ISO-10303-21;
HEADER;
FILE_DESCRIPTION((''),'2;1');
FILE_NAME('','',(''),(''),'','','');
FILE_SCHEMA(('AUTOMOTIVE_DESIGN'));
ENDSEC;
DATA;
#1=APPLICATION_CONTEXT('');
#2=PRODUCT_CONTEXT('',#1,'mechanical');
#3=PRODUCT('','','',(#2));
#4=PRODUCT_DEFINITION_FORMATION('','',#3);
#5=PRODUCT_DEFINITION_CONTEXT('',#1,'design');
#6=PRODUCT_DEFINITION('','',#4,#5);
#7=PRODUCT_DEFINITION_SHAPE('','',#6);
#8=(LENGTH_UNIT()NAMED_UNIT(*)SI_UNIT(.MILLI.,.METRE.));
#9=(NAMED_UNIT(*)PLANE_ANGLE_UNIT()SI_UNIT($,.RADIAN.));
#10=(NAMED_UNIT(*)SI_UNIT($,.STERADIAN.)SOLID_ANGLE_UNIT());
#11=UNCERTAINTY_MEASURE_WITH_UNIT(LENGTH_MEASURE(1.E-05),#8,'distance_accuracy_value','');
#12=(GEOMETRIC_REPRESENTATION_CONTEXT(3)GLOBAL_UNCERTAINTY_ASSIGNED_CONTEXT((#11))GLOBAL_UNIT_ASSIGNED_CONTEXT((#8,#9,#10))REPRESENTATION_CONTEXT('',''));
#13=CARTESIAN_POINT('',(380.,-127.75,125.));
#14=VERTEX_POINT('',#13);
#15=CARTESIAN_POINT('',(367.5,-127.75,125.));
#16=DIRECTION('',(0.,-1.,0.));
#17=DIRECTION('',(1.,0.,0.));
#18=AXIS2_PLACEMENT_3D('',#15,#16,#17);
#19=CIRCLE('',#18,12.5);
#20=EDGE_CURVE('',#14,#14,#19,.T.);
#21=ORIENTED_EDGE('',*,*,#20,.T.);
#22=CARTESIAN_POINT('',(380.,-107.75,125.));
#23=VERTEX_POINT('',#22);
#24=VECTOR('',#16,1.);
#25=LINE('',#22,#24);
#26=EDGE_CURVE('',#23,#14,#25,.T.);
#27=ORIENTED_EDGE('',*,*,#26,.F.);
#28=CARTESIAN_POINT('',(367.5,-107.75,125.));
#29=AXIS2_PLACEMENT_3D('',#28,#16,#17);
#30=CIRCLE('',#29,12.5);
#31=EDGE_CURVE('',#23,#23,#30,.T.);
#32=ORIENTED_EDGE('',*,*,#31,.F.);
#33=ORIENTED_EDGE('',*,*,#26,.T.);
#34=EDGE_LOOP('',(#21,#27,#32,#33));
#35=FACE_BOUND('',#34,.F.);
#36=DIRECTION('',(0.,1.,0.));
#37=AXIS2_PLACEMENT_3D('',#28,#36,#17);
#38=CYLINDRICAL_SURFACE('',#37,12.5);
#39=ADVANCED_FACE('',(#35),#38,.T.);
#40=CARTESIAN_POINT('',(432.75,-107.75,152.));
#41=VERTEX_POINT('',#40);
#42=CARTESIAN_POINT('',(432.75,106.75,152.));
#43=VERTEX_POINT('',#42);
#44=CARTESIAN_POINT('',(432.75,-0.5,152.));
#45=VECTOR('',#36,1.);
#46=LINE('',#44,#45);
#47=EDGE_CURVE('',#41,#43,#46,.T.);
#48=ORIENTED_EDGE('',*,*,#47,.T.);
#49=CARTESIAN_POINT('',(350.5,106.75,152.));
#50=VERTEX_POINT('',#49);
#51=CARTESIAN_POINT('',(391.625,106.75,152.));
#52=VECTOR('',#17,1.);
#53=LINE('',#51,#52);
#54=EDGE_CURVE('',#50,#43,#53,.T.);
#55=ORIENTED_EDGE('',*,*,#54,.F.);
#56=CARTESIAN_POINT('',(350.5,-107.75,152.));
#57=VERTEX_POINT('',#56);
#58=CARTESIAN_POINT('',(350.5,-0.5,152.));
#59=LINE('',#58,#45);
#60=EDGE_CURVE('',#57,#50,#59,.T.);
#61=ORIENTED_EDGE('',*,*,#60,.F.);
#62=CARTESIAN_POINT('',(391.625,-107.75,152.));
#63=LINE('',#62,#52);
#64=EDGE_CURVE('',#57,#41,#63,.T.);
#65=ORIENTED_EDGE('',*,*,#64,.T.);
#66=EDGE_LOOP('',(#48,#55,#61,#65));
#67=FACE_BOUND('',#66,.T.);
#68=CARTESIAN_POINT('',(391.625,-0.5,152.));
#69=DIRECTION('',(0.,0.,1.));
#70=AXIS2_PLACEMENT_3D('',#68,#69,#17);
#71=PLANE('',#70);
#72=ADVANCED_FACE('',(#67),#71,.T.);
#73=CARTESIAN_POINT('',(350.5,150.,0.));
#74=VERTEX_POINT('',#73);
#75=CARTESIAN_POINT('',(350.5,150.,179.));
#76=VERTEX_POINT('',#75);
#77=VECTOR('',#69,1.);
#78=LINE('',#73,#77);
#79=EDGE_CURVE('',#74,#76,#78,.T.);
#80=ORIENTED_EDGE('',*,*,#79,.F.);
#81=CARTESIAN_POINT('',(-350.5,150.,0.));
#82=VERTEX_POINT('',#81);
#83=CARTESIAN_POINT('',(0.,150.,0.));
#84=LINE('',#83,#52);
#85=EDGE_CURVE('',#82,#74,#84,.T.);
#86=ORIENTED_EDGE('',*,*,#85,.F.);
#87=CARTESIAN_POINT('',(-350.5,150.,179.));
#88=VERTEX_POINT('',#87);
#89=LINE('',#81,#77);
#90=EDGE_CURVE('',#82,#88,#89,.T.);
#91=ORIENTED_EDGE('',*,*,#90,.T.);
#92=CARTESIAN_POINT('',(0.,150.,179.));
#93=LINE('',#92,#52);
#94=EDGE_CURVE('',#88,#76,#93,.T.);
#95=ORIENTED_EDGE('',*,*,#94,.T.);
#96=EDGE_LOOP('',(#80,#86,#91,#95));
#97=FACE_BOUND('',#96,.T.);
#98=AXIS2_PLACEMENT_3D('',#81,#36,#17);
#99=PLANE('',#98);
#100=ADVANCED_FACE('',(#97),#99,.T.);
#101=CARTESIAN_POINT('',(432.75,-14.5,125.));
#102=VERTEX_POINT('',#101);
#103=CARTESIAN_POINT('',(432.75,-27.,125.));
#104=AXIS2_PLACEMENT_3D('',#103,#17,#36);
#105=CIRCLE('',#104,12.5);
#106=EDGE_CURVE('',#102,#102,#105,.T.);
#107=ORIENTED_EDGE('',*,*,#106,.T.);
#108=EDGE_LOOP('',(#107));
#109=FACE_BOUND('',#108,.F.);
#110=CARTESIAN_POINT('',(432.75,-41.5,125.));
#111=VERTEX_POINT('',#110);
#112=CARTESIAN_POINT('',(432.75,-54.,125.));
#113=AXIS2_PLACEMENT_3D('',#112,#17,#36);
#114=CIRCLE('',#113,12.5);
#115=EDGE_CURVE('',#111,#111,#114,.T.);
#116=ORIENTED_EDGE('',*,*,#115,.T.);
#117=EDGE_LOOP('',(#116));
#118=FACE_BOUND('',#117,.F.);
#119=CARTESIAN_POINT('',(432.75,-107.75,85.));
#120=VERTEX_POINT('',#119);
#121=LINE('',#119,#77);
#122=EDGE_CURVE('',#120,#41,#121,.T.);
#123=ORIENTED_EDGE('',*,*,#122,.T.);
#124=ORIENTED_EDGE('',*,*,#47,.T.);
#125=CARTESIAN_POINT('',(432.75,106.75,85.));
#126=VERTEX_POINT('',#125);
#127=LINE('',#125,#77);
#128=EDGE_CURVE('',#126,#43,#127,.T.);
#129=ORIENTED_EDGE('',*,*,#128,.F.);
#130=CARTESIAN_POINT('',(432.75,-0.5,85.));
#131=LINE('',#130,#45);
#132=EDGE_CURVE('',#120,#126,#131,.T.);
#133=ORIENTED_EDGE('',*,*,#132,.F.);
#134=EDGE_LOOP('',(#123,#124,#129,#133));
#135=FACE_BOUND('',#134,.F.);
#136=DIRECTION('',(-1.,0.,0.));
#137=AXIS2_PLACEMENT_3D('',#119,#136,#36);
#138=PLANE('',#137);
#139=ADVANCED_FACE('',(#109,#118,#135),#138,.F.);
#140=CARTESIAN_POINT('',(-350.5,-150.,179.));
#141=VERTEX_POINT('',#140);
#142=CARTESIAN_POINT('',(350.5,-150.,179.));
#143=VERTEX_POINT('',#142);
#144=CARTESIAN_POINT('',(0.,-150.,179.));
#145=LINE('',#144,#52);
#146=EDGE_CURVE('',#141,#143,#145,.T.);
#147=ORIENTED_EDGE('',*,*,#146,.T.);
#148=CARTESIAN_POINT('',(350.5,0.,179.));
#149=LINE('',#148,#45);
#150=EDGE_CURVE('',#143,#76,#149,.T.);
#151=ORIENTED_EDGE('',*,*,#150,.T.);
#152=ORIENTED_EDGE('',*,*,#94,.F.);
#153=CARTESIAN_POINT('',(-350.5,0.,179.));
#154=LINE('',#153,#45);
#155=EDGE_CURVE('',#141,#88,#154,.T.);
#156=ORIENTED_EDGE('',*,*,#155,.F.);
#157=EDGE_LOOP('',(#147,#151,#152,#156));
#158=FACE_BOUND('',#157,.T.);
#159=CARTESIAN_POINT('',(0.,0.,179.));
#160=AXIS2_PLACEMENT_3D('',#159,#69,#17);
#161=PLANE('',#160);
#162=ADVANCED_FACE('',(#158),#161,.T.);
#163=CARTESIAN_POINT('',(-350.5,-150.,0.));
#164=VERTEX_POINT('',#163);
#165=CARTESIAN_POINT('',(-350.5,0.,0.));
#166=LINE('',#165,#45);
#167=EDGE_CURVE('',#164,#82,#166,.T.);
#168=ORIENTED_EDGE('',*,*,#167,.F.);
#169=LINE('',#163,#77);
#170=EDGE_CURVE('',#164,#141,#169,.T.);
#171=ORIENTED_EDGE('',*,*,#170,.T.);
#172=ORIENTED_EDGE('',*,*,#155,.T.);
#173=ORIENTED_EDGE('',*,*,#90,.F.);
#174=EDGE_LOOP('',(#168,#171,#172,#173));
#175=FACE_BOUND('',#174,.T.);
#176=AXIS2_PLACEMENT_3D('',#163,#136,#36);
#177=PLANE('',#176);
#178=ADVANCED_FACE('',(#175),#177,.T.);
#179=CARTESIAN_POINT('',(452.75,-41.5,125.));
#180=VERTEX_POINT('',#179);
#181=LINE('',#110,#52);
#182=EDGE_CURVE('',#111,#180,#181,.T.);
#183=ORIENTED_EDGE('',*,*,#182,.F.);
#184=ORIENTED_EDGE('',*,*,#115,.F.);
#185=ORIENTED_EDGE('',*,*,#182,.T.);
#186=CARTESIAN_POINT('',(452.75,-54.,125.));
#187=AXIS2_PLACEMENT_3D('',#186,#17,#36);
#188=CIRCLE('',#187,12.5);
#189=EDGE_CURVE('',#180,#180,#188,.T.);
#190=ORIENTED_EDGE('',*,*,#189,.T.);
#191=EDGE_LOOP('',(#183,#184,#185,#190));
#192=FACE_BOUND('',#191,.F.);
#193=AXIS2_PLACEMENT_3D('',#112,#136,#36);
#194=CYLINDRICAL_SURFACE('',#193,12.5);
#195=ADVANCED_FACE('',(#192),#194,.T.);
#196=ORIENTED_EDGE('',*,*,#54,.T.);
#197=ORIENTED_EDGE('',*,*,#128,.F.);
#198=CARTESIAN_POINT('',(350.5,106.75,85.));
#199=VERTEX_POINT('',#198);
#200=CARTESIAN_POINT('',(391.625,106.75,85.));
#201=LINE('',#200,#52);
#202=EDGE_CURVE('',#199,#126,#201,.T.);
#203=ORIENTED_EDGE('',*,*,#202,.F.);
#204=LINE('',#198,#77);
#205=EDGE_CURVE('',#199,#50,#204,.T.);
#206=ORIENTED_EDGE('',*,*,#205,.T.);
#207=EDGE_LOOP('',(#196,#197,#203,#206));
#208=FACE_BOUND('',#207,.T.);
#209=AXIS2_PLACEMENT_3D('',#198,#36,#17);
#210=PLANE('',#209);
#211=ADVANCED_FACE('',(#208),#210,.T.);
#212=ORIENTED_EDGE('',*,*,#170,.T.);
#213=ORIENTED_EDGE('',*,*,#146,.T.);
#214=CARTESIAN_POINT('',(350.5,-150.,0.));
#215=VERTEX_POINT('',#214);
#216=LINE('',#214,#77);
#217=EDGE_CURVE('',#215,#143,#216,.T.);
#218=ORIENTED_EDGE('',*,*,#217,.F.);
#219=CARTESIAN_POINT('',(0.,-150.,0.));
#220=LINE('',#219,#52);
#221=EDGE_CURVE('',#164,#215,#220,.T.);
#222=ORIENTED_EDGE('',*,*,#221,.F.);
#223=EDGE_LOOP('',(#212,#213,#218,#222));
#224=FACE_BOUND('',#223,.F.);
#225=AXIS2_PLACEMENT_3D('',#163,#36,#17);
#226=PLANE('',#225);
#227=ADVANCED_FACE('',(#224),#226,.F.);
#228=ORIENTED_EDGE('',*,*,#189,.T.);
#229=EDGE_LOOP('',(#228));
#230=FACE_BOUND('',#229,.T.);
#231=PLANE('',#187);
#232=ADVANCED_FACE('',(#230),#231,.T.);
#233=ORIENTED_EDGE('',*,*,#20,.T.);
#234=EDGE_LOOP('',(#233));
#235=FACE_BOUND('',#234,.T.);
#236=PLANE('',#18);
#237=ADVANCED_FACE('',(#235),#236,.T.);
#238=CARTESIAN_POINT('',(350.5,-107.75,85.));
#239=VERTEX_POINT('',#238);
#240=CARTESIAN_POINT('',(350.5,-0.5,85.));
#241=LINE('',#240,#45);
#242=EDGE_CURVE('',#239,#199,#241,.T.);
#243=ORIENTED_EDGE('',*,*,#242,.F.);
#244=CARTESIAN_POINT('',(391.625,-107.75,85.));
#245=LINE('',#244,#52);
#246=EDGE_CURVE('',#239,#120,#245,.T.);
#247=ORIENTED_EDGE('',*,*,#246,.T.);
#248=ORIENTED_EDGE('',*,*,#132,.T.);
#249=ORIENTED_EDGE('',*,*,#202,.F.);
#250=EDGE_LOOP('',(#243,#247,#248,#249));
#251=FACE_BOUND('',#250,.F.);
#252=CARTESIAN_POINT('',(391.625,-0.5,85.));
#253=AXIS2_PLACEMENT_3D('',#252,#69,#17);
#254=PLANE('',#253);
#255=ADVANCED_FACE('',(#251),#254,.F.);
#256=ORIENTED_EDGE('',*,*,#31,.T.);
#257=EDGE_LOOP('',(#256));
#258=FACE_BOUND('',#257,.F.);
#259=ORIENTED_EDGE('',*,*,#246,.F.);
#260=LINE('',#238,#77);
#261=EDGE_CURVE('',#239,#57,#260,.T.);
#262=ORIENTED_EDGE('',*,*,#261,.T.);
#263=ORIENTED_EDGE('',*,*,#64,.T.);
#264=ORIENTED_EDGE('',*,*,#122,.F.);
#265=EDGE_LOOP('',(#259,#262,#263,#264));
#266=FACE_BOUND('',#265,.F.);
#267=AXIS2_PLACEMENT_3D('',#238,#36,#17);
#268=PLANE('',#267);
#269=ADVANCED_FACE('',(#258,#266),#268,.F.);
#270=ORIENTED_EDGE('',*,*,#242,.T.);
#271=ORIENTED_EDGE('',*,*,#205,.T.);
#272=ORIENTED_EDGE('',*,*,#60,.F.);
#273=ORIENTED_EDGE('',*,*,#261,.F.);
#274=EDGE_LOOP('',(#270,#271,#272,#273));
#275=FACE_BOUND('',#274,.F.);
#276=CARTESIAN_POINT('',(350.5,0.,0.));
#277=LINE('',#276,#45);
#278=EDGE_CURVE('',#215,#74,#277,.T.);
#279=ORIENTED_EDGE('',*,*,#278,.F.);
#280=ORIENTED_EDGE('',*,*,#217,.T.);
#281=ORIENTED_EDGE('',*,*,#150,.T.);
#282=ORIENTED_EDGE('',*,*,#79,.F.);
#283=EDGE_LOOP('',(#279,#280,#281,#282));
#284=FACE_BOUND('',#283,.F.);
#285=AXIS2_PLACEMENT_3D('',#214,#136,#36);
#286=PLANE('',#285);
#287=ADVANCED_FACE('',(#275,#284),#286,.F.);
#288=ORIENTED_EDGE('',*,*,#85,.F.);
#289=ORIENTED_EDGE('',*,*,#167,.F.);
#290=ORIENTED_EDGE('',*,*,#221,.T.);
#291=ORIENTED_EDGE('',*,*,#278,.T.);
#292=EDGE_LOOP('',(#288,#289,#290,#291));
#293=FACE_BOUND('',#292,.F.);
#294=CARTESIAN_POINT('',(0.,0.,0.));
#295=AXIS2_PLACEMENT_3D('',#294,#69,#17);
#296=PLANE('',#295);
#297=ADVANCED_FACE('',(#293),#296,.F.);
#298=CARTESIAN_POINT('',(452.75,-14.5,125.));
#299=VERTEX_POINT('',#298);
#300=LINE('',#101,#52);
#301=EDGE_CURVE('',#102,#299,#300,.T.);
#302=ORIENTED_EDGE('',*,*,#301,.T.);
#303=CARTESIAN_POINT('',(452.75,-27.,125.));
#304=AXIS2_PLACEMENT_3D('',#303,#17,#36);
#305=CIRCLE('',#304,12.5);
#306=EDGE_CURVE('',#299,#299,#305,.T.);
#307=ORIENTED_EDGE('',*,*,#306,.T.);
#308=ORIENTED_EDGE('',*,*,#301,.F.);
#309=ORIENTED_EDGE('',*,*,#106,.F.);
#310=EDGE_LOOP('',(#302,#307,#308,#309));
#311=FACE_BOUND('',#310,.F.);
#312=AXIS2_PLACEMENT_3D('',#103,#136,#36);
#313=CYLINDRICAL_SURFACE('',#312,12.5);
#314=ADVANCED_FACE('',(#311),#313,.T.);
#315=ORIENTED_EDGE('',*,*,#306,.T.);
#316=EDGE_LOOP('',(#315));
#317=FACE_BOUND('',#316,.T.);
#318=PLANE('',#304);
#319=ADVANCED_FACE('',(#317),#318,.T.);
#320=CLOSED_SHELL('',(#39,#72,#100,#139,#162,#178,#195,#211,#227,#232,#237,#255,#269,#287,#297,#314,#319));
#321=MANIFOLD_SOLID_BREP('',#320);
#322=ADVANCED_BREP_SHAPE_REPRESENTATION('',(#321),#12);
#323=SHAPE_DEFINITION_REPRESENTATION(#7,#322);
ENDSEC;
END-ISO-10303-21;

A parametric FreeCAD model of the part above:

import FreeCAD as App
import Part
import Sketcher
from FreeCAD import Vector

doc = App.newDocument("Part")
body = doc.addObject("PartDesign::Body", "Body")

# Sketch on XY plane
sketch1 = doc.addObject("Sketcher::SketchObject", "Sketch")
body.addObject(sketch1)
sketch1.AttachmentSupport = (doc.XY_Plane, [""])
sketch1.MapMode = "FlatFace"
sketch1.addGeometry(Part.LineSegment(Vector(-350, 150, 0), Vector(-350, -150, 0)), False)
sketch1.addGeometry(Part.LineSegment(Vector(-350, -150, 0), Vector(350, -150, 0)), False)
sketch1.addGeometry(Part.LineSegment(Vector(350, -150, 0), Vector(350, 150, 0)), False)
sketch1.addGeometry(Part.LineSegment(Vector(350, 150, 0), Vector(-350, 150, 0)), False)
sketch1.addConstraint(Sketcher.Constraint("Coincident", 0, 2, 1, 1))
sketch1.addConstraint(Sketcher.Constraint("Coincident", 1, 2, 2, 1))
sketch1.addConstraint(Sketcher.Constraint("Coincident", 2, 2, 3, 1))
sketch1.addConstraint(Sketcher.Constraint("Coincident", 3, 2, 0, 1))
sketch1.addConstraint(Sketcher.Constraint("Vertical", 0))
sketch1.addConstraint(Sketcher.Constraint("Horizontal", 1))
sketch1.addConstraint(Sketcher.Constraint("Vertical", 2))
sketch1.addConstraint(Sketcher.Constraint("Horizontal", 3))
sketch1.addConstraint(Sketcher.Constraint("Symmetric", 0, 2, 2, 2, -1, 1))
sketch1.addConstraint(Sketcher.Constraint("DistanceX", 1, 1, 1, 2, 701.0))
sketch1.addConstraint(Sketcher.Constraint("DistanceY", 0, 2, 0, 1, 300.0))
pad1 = doc.addObject("PartDesign::Pad", "Pad")
body.addObject(pad1)
pad1.Profile = sketch1
pad1.Length = 179

# Sketch on XY plane
sketch2 = doc.addObject("Sketcher::SketchObject", "Sketch001")
body.addObject(sketch2)
sketch2.AttachmentSupport = (doc.XY_Plane, [""])
sketch2.MapMode = "FlatFace"
sketch2.AttachmentOffset = App.Placement(Vector(0, 0, 85), App.Rotation())
sketch2.addGeometry(Part.LineSegment(Vector(350, 107, 0), Vector(350, -108, 0)), False)
sketch2.addGeometry(Part.LineSegment(Vector(350, -108, 0), Vector(433, -108, 0)), False)
sketch2.addGeometry(Part.LineSegment(Vector(433, -108, 0), Vector(433, 107, 0)), False)
sketch2.addGeometry(Part.LineSegment(Vector(433, 107, 0), Vector(350, 107, 0)), False)
sketch2.addConstraint(Sketcher.Constraint("Coincident", 0, 2, 1, 1))
sketch2.addConstraint(Sketcher.Constraint("Coincident", 1, 2, 2, 1))
sketch2.addConstraint(Sketcher.Constraint("Coincident", 2, 2, 3, 1))
sketch2.addConstraint(Sketcher.Constraint("Coincident", 3, 2, 0, 1))
sketch2.addConstraint(Sketcher.Constraint("Vertical", 0))
sketch2.addConstraint(Sketcher.Constraint("Horizontal", 1))
sketch2.addConstraint(Sketcher.Constraint("Vertical", 2))
sketch2.addConstraint(Sketcher.Constraint("Horizontal", 3))
sketch2.addConstraint(Sketcher.Constraint("DistanceY", 0, 2, 0, 1, 214.5))
sketch2.addConstraint(Sketcher.Constraint("DistanceX", 1, 1, 1, 2, 82.25))
sketch2.addConstraint(Sketcher.Constraint("DistanceX", -1, 1, 0, 2, 350.5))
sketch2.addConstraint(Sketcher.Constraint("DistanceY", 0, 2, -1, 1, 107.75))
pad2 = doc.addObject("PartDesign::Pad", "Pad001")
body.addObject(pad2)
pad2.Profile = sketch2
pad2.Length = 67

# Sketch on YZ plane
sketch3 = doc.addObject("Sketcher::SketchObject", "Sketch002")
body.addObject(sketch3)
sketch3.AttachmentSupport = (doc.YZ_Plane, [""])
sketch3.MapMode = "FlatFace"
sketch3.AttachmentOffset = App.Placement(Vector(0, 0, 432.75), App.Rotation())
sketch3.addGeometry(Part.Circle(Vector(-54, 125, 0), Vector(0, 0, 1), 12), False)
sketch3.addGeometry(Part.Circle(Vector(-27, 125, 0), Vector(0, 0, 1), 12), False)
sketch3.addConstraint(Sketcher.Constraint("Equal", 0, 1))
sketch3.addConstraint(Sketcher.Constraint("Horizontal", 0, 3, 1, 3))
sketch3.addConstraint(Sketcher.Constraint("Diameter", 0, 25.0))
sketch3.addConstraint(Sketcher.Constraint("DistanceX", 0, 3, -1, 1, 54.0))
sketch3.addConstraint(Sketcher.Constraint("DistanceY", -1, 1, 0, 3, 125.0))
sketch3.addConstraint(Sketcher.Constraint("DistanceX", 1, 3, -1, 1, 27.0))
pad3 = doc.addObject("PartDesign::Pad", "Pad002")
body.addObject(pad3)
pad3.Profile = sketch3
pad3.Length = 20

# Sketch on XZ plane
sketch4 = doc.addObject("Sketcher::SketchObject", "Sketch003")
body.addObject(sketch4)
sketch4.AttachmentSupport = (doc.XZ_Plane, [""])
sketch4.MapMode = "FlatFace"
sketch4.AttachmentOffset = App.Placement(Vector(0, 0, 107.75), App.Rotation())
sketch4.addGeometry(Part.Circle(Vector(368, 125, 0), Vector(0, 0, 1), 12), False)
sketch4.addConstraint(Sketcher.Constraint("Diameter", 0, 25.0))
sketch4.addConstraint(Sketcher.Constraint("DistanceY", -1, 1, 0, 3, 125.0))
sketch4.addConstraint(Sketcher.Constraint("DistanceX", -1, 1, 0, 3, 367.5))
pad4 = doc.addObject("PartDesign::Pad", "Pad003")
body.addObject(pad4)
pad4.Profile = sketch4
pad4.Length = 20

doc.recompute()
